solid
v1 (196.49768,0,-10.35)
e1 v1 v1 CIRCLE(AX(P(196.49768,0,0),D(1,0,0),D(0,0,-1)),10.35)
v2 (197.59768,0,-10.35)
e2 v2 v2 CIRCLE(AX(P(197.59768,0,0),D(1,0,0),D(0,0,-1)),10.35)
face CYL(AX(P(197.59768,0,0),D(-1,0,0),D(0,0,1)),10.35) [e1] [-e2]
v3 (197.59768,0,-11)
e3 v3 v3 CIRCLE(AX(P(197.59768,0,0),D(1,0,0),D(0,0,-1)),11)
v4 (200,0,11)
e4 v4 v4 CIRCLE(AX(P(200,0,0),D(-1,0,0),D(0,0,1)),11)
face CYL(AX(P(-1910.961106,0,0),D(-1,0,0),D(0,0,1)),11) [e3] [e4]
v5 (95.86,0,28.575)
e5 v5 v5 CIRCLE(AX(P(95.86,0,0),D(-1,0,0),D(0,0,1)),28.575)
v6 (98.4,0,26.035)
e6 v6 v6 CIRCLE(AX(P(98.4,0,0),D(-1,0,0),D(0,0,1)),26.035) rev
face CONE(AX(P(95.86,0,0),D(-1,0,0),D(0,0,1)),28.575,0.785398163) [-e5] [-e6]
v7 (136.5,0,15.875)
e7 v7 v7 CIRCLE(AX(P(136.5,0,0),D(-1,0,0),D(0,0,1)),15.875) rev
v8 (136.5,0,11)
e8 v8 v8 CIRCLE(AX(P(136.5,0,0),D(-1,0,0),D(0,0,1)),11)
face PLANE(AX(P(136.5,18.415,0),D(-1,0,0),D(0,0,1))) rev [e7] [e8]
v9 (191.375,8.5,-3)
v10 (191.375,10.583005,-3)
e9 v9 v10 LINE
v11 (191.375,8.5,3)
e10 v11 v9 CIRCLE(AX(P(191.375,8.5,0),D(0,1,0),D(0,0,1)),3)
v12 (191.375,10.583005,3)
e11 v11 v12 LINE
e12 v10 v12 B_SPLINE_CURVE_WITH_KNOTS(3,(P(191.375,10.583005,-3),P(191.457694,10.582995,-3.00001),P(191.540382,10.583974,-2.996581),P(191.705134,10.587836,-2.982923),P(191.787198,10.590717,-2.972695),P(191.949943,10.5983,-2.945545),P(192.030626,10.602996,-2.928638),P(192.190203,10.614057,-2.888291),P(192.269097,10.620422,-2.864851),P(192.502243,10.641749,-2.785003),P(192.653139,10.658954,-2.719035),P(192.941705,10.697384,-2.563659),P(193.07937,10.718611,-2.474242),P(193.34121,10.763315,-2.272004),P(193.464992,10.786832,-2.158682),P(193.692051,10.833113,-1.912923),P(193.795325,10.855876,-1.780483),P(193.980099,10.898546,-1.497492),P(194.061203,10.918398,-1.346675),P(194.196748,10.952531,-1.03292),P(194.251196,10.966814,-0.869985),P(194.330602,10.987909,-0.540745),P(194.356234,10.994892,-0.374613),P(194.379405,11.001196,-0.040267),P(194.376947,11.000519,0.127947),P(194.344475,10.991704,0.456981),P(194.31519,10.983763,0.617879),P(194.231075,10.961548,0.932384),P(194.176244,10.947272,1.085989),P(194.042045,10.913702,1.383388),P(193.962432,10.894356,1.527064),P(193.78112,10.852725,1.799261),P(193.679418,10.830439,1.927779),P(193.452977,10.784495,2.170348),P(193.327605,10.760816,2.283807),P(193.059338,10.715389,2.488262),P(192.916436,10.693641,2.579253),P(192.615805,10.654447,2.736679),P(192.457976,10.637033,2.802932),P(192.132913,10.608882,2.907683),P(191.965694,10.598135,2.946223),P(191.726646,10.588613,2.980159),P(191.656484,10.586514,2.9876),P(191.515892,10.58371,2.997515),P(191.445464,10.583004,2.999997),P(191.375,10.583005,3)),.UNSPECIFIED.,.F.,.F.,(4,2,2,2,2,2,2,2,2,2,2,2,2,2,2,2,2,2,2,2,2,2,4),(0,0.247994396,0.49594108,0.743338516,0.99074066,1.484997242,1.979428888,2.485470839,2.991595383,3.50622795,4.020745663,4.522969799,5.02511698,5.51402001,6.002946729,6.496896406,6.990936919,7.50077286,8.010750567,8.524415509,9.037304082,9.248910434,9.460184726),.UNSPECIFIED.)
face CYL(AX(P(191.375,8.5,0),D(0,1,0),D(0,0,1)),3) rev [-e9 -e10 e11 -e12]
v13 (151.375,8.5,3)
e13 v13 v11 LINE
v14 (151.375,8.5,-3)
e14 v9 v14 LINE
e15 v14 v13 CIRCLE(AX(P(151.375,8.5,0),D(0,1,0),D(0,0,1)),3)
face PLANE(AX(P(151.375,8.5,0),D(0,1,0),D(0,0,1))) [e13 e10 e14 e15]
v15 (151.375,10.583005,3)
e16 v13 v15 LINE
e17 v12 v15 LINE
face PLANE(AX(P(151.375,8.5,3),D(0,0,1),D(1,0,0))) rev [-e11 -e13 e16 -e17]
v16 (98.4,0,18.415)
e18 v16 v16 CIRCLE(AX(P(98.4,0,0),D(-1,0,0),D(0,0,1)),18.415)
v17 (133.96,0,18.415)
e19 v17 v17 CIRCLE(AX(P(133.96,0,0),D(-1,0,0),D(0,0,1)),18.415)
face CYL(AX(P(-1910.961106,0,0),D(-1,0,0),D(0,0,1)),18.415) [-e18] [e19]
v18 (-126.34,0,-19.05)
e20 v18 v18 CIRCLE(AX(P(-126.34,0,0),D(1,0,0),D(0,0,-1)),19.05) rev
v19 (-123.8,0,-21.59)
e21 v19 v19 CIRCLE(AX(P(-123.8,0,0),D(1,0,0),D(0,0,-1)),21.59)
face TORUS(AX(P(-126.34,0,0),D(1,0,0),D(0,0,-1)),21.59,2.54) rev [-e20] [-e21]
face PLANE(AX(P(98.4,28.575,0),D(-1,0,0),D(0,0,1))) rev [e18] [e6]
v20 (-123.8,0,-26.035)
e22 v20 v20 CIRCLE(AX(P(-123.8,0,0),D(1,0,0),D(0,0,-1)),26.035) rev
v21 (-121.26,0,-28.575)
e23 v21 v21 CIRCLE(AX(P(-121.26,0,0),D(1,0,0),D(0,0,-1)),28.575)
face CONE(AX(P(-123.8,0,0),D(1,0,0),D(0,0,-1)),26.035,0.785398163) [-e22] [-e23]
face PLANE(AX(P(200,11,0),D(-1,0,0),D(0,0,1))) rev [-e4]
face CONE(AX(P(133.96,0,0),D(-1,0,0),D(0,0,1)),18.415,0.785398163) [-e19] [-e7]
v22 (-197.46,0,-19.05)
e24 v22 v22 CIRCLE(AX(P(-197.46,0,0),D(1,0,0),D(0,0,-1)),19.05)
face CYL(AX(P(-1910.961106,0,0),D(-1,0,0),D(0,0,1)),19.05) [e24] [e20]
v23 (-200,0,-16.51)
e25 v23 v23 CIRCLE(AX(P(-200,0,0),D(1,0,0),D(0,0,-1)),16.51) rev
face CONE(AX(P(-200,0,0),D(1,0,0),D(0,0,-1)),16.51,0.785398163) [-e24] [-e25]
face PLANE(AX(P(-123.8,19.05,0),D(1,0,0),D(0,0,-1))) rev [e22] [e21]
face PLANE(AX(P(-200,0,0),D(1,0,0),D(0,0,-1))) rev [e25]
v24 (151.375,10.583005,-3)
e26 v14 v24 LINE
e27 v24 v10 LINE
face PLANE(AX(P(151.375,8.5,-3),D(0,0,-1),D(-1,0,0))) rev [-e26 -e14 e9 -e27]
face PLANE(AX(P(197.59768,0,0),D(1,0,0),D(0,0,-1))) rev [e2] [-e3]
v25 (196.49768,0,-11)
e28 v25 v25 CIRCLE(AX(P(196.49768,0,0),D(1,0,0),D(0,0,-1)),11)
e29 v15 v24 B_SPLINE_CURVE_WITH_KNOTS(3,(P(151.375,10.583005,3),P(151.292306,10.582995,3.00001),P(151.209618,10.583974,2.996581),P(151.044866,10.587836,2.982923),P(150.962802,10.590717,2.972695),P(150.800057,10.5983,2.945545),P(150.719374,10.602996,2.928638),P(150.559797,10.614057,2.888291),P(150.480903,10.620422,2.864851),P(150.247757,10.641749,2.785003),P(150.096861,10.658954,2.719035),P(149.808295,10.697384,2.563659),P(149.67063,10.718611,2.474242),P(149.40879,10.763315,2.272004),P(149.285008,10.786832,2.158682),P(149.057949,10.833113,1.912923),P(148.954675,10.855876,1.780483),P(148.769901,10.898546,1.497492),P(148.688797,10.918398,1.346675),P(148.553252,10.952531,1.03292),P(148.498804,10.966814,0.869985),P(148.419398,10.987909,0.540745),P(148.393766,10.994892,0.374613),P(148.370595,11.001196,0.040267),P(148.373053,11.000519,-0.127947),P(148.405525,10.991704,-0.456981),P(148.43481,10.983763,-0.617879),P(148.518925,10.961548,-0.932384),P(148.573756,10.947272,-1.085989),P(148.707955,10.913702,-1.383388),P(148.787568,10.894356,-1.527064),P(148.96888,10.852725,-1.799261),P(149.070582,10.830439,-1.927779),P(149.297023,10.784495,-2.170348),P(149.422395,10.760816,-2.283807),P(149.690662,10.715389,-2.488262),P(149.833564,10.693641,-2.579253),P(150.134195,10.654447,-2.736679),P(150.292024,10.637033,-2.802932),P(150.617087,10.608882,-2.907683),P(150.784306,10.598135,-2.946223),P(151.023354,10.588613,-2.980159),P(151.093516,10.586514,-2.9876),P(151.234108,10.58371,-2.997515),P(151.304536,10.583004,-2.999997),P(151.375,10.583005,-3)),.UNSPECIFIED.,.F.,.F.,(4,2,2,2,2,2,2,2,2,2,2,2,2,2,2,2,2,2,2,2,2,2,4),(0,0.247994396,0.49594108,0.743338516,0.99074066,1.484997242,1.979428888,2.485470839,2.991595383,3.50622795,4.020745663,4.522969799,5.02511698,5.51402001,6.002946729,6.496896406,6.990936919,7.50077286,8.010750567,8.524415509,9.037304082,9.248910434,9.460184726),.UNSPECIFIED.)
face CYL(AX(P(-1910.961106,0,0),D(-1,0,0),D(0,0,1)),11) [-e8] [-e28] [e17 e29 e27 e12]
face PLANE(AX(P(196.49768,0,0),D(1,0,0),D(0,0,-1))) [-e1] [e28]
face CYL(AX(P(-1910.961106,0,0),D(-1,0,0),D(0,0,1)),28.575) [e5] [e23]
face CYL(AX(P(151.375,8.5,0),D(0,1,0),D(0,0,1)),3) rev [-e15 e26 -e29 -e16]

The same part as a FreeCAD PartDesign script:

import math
import FreeCAD as App
import Part
import Sketcher


def edges_at(feature, points):
    """Names of the edges that pass closest to the given points."""
    edges = feature.Shape.Edges
    near = lambda p: min(range(len(edges)), key=lambda i: edges[i].distToShape(Part.Vertex(*p))[0])
    return sorted({f"Edge{near(p) + 1}" for p in points})

doc = App.newDocument("Part")
body = doc.addObject("PartDesign::Body", "Body")

# Sketch on XY plane
sketch1 = body.newObject("Sketcher::SketchObject", "Sketch")
sketch1.AttachmentSupport = (doc.getObject("XY_Plane"), [""])
sketch1.MapMode = "FlatFace"
sketch1.addGeometry([
    Part.LineSegment(App.Vector(-200, 0, 0), App.Vector(200, 0, 0)),  # 0
    Part.LineSegment(App.Vector(200, 0, 0), App.Vector(200, 11, 0)),  # 1
    Part.LineSegment(App.Vector(200, 11, 0), App.Vector(136, 11, 0)),  # 2
    Part.LineSegment(App.Vector(136, 11, 0), App.Vector(136, 18, 0)),  # 3
    Part.LineSegment(App.Vector(136, 18, 0), App.Vector(98, 18, 0)),  # 4
    Part.LineSegment(App.Vector(98, 18, 0), App.Vector(98, 29, 0)),  # 5
    Part.LineSegment(App.Vector(98, 29, 0), App.Vector(-124, 29, 0)),  # 6
    Part.LineSegment(App.Vector(-124, 29, 0), App.Vector(-124, 19, 0)),  # 7
    Part.LineSegment(App.Vector(-124, 19, 0), App.Vector(-200, 19, 0)),  # 8
    Part.LineSegment(App.Vector(-200, 19, 0), App.Vector(-200, 0, 0)),  # 9
], False)
sketch1.addConstraint([
    Sketcher.Constraint("Coincident", 0, 2, 1, 1),
    Sketcher.Constraint("Coincident", 1, 2, 2, 1),
    Sketcher.Constraint("Coincident", 2, 2, 3, 1),
    Sketcher.Constraint("Coincident", 3, 2, 4, 1),
    Sketcher.Constraint("Coincident", 4, 2, 5, 1),
    Sketcher.Constraint("Coincident", 5, 2, 6, 1),
    Sketcher.Constraint("Coincident", 6, 2, 7, 1),
    Sketcher.Constraint("Coincident", 7, 2, 8, 1),
    Sketcher.Constraint("Coincident", 8, 2, 9, 1),
    Sketcher.Constraint("Coincident", 9, 2, 0, 1),
    Sketcher.Constraint("Horizontal", 0),
    Sketcher.Constraint("Vertical", 1),
    Sketcher.Constraint("Horizontal", 2),
    Sketcher.Constraint("Vertical", 3),
    Sketcher.Constraint("Horizontal", 4),
    Sketcher.Constraint("Vertical", 5),
    Sketcher.Constraint("Horizontal", 6),
    Sketcher.Constraint("Vertical", 7),
    Sketcher.Constraint("Horizontal", 8),
    Sketcher.Constraint("Vertical", 9),
    Sketcher.Constraint("Symmetric", 0, 2, 9, 2, -1, 1),
    Sketcher.Constraint("DistanceX", 0, 1, 0, 2, 400.0),
    Sketcher.Constraint("DistanceY", 1, 1, 1, 2, 11.0),
    Sketcher.Constraint("DistanceX", 2, 2, 2, 1, 63.5),
    Sketcher.Constraint("DistanceX", 4, 2, 4, 1, 38.1),
    Sketcher.Constraint("DistanceX", 6, 2, 6, 1, 222.2),
    Sketcher.Constraint("DistanceY", 5, 1, 5, 2, 10.16),
    Sketcher.Constraint("DistanceY", 9, 2, 9, 1, 19.05),
    Sketcher.Constraint("DistanceY", 3, 1, 3, 2, 7.415),
])
revolution = body.newObject("PartDesign::Revolution", "Revolution")
revolution.Profile = sketch1
revolution.ReferenceAxis = (sketch1, ["H_Axis"])
revolution.Angle = 360
doc.recompute()

chamfer = body.newObject("PartDesign::Chamfer", "Chamfer")
chamfer.Base = (revolution, edges_at(revolution, [(136.5, 0, -18.415), (98.4, 0, -28.575)]))
chamfer.Size = 2.54
doc.recompute()

chamfer2 = body.newObject("PartDesign::Chamfer", "Chamfer001")
chamfer2.Base = (chamfer, edges_at(chamfer, [(-123.8, 0, -28.575), (-200, 0, -19.05)]))
chamfer2.Size = 2.54
doc.recompute()

fillet = body.newObject("PartDesign::Fillet", "Fillet")
fillet.Base = (chamfer2, edges_at(chamfer2, [(-123.8, 0, -19.05)]))
fillet.Radius = 2.54

# Sketch on XZ plane
sketch2 = body.newObject("Sketcher::SketchObject", "Sketch001")
sketch2.AttachmentSupport = (doc.getObject("XZ_Plane"), [""])
sketch2.MapMode = "FlatFace"
sketch2.AttachmentOffset = App.Placement(App.Vector(0, 0, -11), App.Rotation())
sketch2.addGeometry([
    Part.LineSegment(App.Vector(191.4, -3, 0), App.Vector(151.4, -3, 0)),
    Part.ArcOfCircle(Part.Circle(App.Vector(151.4, 0, 0), App.Vector(0, 0, 1), 3), math.radians(90), math.radians(270)),
    Part.LineSegment(App.Vector(151.4, 3, 0), App.Vector(191.4, 3, 0)),
    Part.ArcOfCircle(Part.Circle(App.Vector(191.4, 0, 0), App.Vector(0, 0, 1), 3), math.radians(-90), math.radians(90)),
], False)
sketch2.addConstraint([
    Sketcher.Constraint("Tangent", 0, 2, 1, 2),
    Sketcher.Constraint("Tangent", 1, 1, 2, 1),
    Sketcher.Constraint("Tangent", 2, 2, 3, 2),
    Sketcher.Constraint("Tangent", 3, 1, 0, 1),
    Sketcher.Constraint("Horizontal", 0),
    Sketcher.Constraint("Horizontal", 2),
    Sketcher.Constraint("PointOnObject", 1, 3, -1),
    Sketcher.Constraint("Radius", 1, 3.0),
    Sketcher.Constraint("DistanceX", 0, 2, 0, 1, 40.0),
    Sketcher.Constraint("DistanceX", -1, 1, 1, 3, 151.375),
])
pocket1 = body.newObject("PartDesign::Pocket", "Pocket")
pocket1.Profile = sketch2
pocket1.Length = 2.5
pocket1.Reversed = True

# Sketch on YZ plane
sketch3 = body.newObject("Sketcher::SketchObject", "Sketch002")
sketch3.AttachmentSupport = (doc.getObject("YZ_Plane"), [""])
sketch3.MapMode = "FlatFace"
sketch3.AttachmentOffset = App.Placement(App.Vector(0, 0, 196.49768), App.Rotation())
sketch3.addGeometry([
    Part.Circle(App.Vector(0, 0, 0), App.Vector(0, 0, 1), 11),
    Part.Circle(App.Vector(0, 0, 0), App.Vector(0, 0, 1), 10),
], False)
sketch3.addConstraint([
    Sketcher.Constraint("Coincident", 0, 3, -1, 1),
    Sketcher.Constraint("Coincident", 1, 3, -1, 1),
    Sketcher.Constraint("Diameter", 0, 22.0),
    Sketcher.Constraint("Diameter", 1, 20.7),
])
pocket2 = body.newObject("PartDesign::Pocket", "Pocket001")
pocket2.Profile = sketch3
pocket2.Length = 1.1
pocket2.Reversed = True

doc.recompute()
